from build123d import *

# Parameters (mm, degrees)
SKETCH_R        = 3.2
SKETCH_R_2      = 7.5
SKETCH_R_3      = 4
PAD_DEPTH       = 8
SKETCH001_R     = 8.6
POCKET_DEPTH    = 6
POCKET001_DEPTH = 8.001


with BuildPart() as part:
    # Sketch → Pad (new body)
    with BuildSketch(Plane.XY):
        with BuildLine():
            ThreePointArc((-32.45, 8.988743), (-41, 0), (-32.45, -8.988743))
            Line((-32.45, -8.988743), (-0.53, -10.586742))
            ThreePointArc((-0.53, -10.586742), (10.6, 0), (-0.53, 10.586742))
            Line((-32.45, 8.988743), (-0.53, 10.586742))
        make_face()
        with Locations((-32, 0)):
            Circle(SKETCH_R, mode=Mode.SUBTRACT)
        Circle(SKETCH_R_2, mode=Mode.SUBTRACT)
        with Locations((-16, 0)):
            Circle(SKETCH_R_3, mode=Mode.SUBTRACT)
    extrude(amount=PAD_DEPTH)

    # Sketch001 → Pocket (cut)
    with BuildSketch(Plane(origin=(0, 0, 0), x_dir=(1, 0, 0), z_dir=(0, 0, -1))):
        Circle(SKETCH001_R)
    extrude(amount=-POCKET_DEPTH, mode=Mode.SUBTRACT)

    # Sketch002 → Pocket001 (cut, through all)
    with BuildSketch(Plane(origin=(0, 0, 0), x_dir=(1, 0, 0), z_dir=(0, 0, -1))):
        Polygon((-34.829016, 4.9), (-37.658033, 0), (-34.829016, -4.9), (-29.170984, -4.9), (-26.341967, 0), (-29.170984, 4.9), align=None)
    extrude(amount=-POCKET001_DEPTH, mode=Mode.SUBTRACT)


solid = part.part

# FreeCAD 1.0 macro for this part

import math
import FreeCAD as App
import Part
import Sketcher

V = App.Vector
Q = App.Units.Quantity

doc = App.newDocument("Part")
body = doc.addObject("PartDesign::Body", "Body")

# Sketch on XY plane
sketch1 = body.newObject("Sketcher::SketchObject", "Sketch")
sketch1.AttachmentSupport = (doc.getObject("XY_Plane"), [""])
sketch1.MapMode = "FlatFace"
sketch1.addGeometry([
    Part.ArcOfCircle(Part.Circle(V(-32, 0, 0), V(0, 0, 1), 9), math.radians(93), math.radians(267)),  # 0
    Part.LineSegment(V(-32.5, -9, 0), V(-0.5, -10.6, 0)),  # 1
    Part.ArcOfCircle(Part.Circle(V(0, 0, 0), V(0, 0, 1), 10.6), math.radians(-93), math.radians(93)),  # 2
    Part.LineSegment(V(-0.5, 10.6, 0), V(-32.5, 9, 0)),  # 3
    Part.Circle(V(-32, 0, 0), V(0, 0, 1), 3.2),  # 4
    Part.Circle(V(-16, 0, 0), V(0, 0, 1), 4),  # 5
    Part.Circle(V(0, 0, 0), V(0, 0, 1), 7.5),  # 6
], False)
sketch1.addConstraint([
    Sketcher.Constraint("Tangent", 0, 2, 1, 1),
    Sketcher.Constraint("Tangent", 1, 2, 2, 1),
    Sketcher.Constraint("Tangent", 2, 2, 3, 1),
    Sketcher.Constraint("Tangent", 3, 2, 0, 1),
    Sketcher.Constraint("Coincident", 2, 3, -1, 1),
    Sketcher.Constraint("Coincident", 6, 3, -1, 1),
    Sketcher.Constraint("Coincident", 4, 3, 0, 3),
    Sketcher.Constraint("PointOnObject", 0, 3, -1),
    Sketcher.Constraint("PointOnObject", 5, 3, -1),
    Sketcher.Constraint("Diameter", 5, Q("8 mm")),
    Sketcher.Constraint("Diameter", 6, Q("15 mm")),
    Sketcher.Constraint("Radius", 0, Q("9 mm")),
    Sketcher.Constraint("Diameter", 4, Q("6.4 mm")),
    Sketcher.Constraint("Radius", 2, Q("10.6 mm")),
    Sketcher.Constraint("DistanceX", 0, 3, -1, 1, Q("32 mm")),
    Sketcher.Constraint("DistanceX", 5, 3, -1, 1, Q("16 mm")),
])
pad1 = body.newObject("PartDesign::Pad", "Pad")
pad1.Profile = sketch1
pad1.Length = 8

# Sketch on XY plane
sketch2 = body.newObject("Sketcher::SketchObject", "Sketch001")
sketch2.AttachmentSupport = (doc.getObject("XY_Plane"), [""])
sketch2.MapMode = "FlatFace"
sketch2.addGeometry(Part.Circle(V(0, 0, 0), V(0, 0, 1), 9), False)
sketch2.addConstraint([
    Sketcher.Constraint("Coincident", 0, 3, -1, 1),
    Sketcher.Constraint("Diameter", 0, Q("17.2 mm")),
])
pocket1 = body.newObject("PartDesign::Pocket", "Pocket")
pocket1.Profile = sketch2
pocket1.Length = 6
pocket1.Reversed = True

# Sketch on XY plane
sketch3 = body.newObject("Sketcher::SketchObject", "Sketch002")
sketch3.AttachmentSupport = (doc.getObject("XY_Plane"), [""])
sketch3.MapMode = "FlatFace"
sketch3.addGeometry([
    Part.LineSegment(V(-35, -5, 0), V(-38, 0, 0)),  # 0
    Part.LineSegment(V(-38, 0, 0), V(-35, 5, 0)),  # 1
    Part.LineSegment(V(-35, 5, 0), V(-29, 5, 0)),  # 2
    Part.LineSegment(V(-29, 5, 0), V(-26, 0, 0)),  # 3
    Part.LineSegment(V(-26, 0, 0), V(-29, -5, 0)),  # 4
    Part.LineSegment(V(-29, -5, 0), V(-35, -5, 0)),  # 5
], False)
sketch3.addConstraint([
    Sketcher.Constraint("Coincident", 0, 2, 1, 1),
    Sketcher.Constraint("Coincident", 1, 2, 2, 1),
    Sketcher.Constraint("Coincident", 2, 2, 3, 1),
    Sketcher.Constraint("Coincident", 3, 2, 4, 1),
    Sketcher.Constraint("Coincident", 4, 2, 5, 1),
    Sketcher.Constraint("Coincident", 5, 2, 0, 1),
    Sketcher.Constraint("Horizontal", 2),
    Sketcher.Constraint("Horizontal", 5),
    Sketcher.Constraint("Symmetric", 2, 2, 4, 2, -1),
    Sketcher.Constraint("PointOnObject", 0, 2, -1),
    Sketcher.Constraint("PointOnObject", 3, 2, -1),
    Sketcher.Constraint("Parallel", 0, 3),
    Sketcher.Constraint("Parallel", 1, 4),
    Sketcher.Constraint("Angle", 0, Q("120.000006 deg")),
    Sketcher.Constraint("DistanceY", -1, 1, 1, 2, Q("4.9 mm")),
    Sketcher.Constraint("DistanceX", 2, 1, 2, 2, Q("5.658032 mm")),
    Sketcher.Constraint("DistanceX", 0, 2, -1, 1, Q("37.658033 mm")),
])
pocket2 = body.newObject("PartDesign::Pocket", "Pocket001")
pocket2.Profile = sketch3
pocket2.Type = "ThroughAll"
pocket2.Reversed = True

doc.recompute()
